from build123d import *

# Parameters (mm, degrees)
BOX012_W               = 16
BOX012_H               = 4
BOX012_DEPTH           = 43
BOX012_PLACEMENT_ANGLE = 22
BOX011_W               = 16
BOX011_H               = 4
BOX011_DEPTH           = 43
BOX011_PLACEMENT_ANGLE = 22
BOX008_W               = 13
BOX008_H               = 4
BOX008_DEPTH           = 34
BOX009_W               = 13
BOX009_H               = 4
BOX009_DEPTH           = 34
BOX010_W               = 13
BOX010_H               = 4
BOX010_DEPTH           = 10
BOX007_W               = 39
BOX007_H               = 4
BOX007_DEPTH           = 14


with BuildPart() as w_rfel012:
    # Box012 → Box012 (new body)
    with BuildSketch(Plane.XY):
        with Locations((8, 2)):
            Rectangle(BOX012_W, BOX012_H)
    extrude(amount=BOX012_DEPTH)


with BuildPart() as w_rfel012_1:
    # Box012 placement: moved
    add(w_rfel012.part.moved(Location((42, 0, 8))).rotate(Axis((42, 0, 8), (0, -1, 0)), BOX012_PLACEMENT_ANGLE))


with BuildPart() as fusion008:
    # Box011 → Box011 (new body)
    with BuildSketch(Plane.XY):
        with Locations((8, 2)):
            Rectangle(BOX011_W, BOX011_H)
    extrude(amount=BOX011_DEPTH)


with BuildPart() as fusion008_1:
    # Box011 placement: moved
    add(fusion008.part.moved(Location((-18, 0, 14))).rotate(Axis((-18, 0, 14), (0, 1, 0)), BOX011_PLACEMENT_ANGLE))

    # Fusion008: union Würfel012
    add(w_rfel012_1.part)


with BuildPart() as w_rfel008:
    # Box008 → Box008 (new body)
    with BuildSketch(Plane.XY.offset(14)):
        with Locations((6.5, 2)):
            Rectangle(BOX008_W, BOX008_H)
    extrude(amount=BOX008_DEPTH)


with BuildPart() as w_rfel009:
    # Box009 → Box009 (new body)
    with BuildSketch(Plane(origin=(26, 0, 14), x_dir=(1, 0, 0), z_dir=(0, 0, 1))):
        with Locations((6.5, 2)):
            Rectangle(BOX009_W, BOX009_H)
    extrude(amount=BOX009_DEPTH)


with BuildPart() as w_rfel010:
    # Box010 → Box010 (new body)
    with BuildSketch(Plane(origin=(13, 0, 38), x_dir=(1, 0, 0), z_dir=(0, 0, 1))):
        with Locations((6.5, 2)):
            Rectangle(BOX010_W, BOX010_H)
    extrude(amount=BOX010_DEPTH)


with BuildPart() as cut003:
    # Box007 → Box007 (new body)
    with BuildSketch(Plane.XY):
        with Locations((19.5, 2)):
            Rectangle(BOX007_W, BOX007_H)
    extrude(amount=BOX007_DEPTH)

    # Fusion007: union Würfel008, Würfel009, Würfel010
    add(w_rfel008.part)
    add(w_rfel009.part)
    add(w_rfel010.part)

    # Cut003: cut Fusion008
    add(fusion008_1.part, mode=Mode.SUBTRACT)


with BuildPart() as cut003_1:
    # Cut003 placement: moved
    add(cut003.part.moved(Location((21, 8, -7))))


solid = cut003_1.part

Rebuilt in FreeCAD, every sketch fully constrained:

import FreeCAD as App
import Part
import Sketcher

doc = App.newDocument("Part")
params = doc.addObject("Spreadsheet::Sheet", "Params")
for row, (alias, value) in enumerate([
    ("sketch1_width", "16 mm"),
    ("sketch1_height", "4 mm"),
    ("pad1_length", "43 mm"),
    ("sketch2_width", "16 mm"),
    ("sketch2_height", "4 mm"),
    ("pad2_length", "43 mm"),
    ("sketch3_width", "13 mm"),
    ("sketch3_height", "4 mm"),
    ("pad3_length", "34 mm"),
    ("sketch4_width", "13 mm"),
    ("sketch4_height", "4 mm"),
    ("pad4_length", "34 mm"),
    ("sketch5_width", "13 mm"),
    ("sketch5_height", "4 mm"),
    ("pad5_length", "10 mm"),
    ("sketch6_width", "39 mm"),
    ("sketch6_height", "4 mm"),
    ("pad6_length", "14 mm"),
], start=1):
    params.set(f"A{row}", alias)
    params.set(f"B{row}", "=" + value)
    params.setAlias(f"B{row}", alias)

body = doc.addObject("PartDesign::Body", "Body")

sketch1 = body.newObject("Sketcher::SketchObject", "Sketch")
sketch1.AttachmentSupport = (doc.getObject("XY_Plane"), [""])
sketch1.MapMode = "FlatFace"
sketch1.addGeometry(Part.LineSegment(App.Vector(0, 4, 0), App.Vector(0, 0, 0)), False)
sketch1.addGeometry(Part.LineSegment(App.Vector(0, 0, 0), App.Vector(16, 0, 0)), False)
sketch1.addGeometry(Part.LineSegment(App.Vector(16, 0, 0), App.Vector(16, 4, 0)), False)
sketch1.addGeometry(Part.LineSegment(App.Vector(16, 4, 0), App.Vector(0, 4, 0)), False)
sketch1.addConstraint(Sketcher.Constraint("Coincident", 0, 2, 1, 1))
sketch1.addConstraint(Sketcher.Constraint("Coincident", 1, 2, 2, 1))
sketch1.addConstraint(Sketcher.Constraint("Coincident", 2, 2, 3, 1))
sketch1.addConstraint(Sketcher.Constraint("Coincident", 3, 2, 0, 1))
sketch1.addConstraint(Sketcher.Constraint("Vertical", 0))
sketch1.addConstraint(Sketcher.Constraint("Horizontal", 1))
sketch1.addConstraint(Sketcher.Constraint("Vertical", 2))
sketch1.addConstraint(Sketcher.Constraint("Horizontal", 3))
sketch1.addConstraint(Sketcher.Constraint("Coincident", 0, 2, -1, 1))
sketch1.addConstraint(Sketcher.Constraint("DistanceX", 1, 1, 1, 2, 16.0))
sketch1.addConstraint(Sketcher.Constraint("DistanceY", 0, 2, 0, 1, 4.0))
sketch1.setExpression("Constraints[9]", "Params.sketch1_width")
sketch1.setExpression("Constraints[10]", "Params.sketch1_height")
pad1 = body.newObject("PartDesign::Pad", "Pad")
pad1.Profile = sketch1
pad1.setExpression("Length", "Params.pad1_length")
body2 = doc.addObject("PartDesign::Body", "Body001")
doc.recompute()

body.Placement = App.Placement(App.Vector(42, 0, 8), App.Rotation(App.Vector(0, -1, 0), 22))
boolean = body2.newObject("PartDesign::Boolean", "Boolean")
boolean.Type = "Fuse"
boolean.addObjects([body])
body3 = doc.addObject("PartDesign::Body", "Body002")

sketch2 = body3.newObject("Sketcher::SketchObject", "Sketch001")
sketch2.AttachmentSupport = (doc.getObject("XY_Plane002"), [""])
sketch2.MapMode = "FlatFace"
sketch2.addGeometry(Part.LineSegment(App.Vector(0, 4, 0), App.Vector(0, 0, 0)), False)
sketch2.addGeometry(Part.LineSegment(App.Vector(0, 0, 0), App.Vector(16, 0, 0)), False)
sketch2.addGeometry(Part.LineSegment(App.Vector(16, 0, 0), App.Vector(16, 4, 0)), False)
sketch2.addGeometry(Part.LineSegment(App.Vector(16, 4, 0), App.Vector(0, 4, 0)), False)
sketch2.addConstraint(Sketcher.Constraint("Coincident", 0, 2, 1, 1))
sketch2.addConstraint(Sketcher.Constraint("Coincident", 1, 2, 2, 1))
sketch2.addConstraint(Sketcher.Constraint("Coincident", 2, 2, 3, 1))
sketch2.addConstraint(Sketcher.Constraint("Coincident", 3, 2, 0, 1))
sketch2.addConstraint(Sketcher.Constraint("Vertical", 0))
sketch2.addConstraint(Sketcher.Constraint("Horizontal", 1))
sketch2.addConstraint(Sketcher.Constraint("Vertical", 2))
sketch2.addConstraint(Sketcher.Constraint("Horizontal", 3))
sketch2.addConstraint(Sketcher.Constraint("Coincident", 0, 2, -1, 1))
sketch2.addConstraint(Sketcher.Constraint("DistanceX", 1, 1, 1, 2, 16.0))
sketch2.addConstraint(Sketcher.Constraint("DistanceY", 0, 2, 0, 1, 4.0))
sketch2.setExpression("Constraints[9]", "Params.sketch2_width")
sketch2.setExpression("Constraints[10]", "Params.sketch2_height")
pad2 = body3.newObject("PartDesign::Pad", "Pad001")
pad2.Profile = sketch2
pad2.setExpression("Length", "Params.pad2_length")
body4 = doc.addObject("PartDesign::Body", "Body003")
body4.AllowCompound = True
doc.recompute()

body3.Placement = App.Placement(App.Vector(-18, 0, 14), App.Rotation(App.Vector(0, 1, 0), 22))
boolean2 = body4.newObject("PartDesign::Boolean", "Boolean001")
boolean2.Type = "Fuse"
boolean2.addObjects([body3])
doc.recompute()

boolean3 = body4.newObject("PartDesign::Boolean", "Boolean002")
boolean3.Type = "Fuse"
boolean3.addObjects([body2])
body5 = doc.addObject("PartDesign::Body", "Body004")

sketch3 = body5.newObject("Sketcher::SketchObject", "Sketch002")
sketch3.AttachmentSupport = (doc.getObject("XY_Plane004"), [""])
sketch3.MapMode = "FlatFace"
sketch3.AttachmentOffset = App.Placement(App.Vector(0, 0, 14), App.Rotation())
sketch3.addGeometry(Part.LineSegment(App.Vector(0, 4, 0), App.Vector(0, 0, 0)), False)
sketch3.addGeometry(Part.LineSegment(App.Vector(0, 0, 0), App.Vector(13, 0, 0)), False)
sketch3.addGeometry(Part.LineSegment(App.Vector(13, 0, 0), App.Vector(13, 4, 0)), False)
sketch3.addGeometry(Part.LineSegment(App.Vector(13, 4, 0), App.Vector(0, 4, 0)), False)
sketch3.addConstraint(Sketcher.Constraint("Coincident", 0, 2, 1, 1))
sketch3.addConstraint(Sketcher.Constraint("Coincident", 1, 2, 2, 1))
sketch3.addConstraint(Sketcher.Constraint("Coincident", 2, 2, 3, 1))
sketch3.addConstraint(Sketcher.Constraint("Coincident", 3, 2, 0, 1))
sketch3.addConstraint(Sketcher.Constraint("Vertical", 0))
sketch3.addConstraint(Sketcher.Constraint("Horizontal", 1))
sketch3.addConstraint(Sketcher.Constraint("Vertical", 2))
sketch3.addConstraint(Sketcher.Constraint("Horizontal", 3))
sketch3.addConstraint(Sketcher.Constraint("Coincident", 0, 2, -1, 1))
sketch3.addConstraint(Sketcher.Constraint("DistanceX", 1, 1, 1, 2, 13.0))
sketch3.addConstraint(Sketcher.Constraint("DistanceY", 0, 2, 0, 1, 4.0))
sketch3.setExpression("Constraints[9]", "Params.sketch3_width")
sketch3.setExpression("Constraints[10]", "Params.sketch3_height")
pad3 = body5.newObject("PartDesign::Pad", "Pad002")
pad3.Profile = sketch3
pad3.setExpression("Length", "Params.pad3_length")
body6 = doc.addObject("PartDesign::Body", "Body005")

sketch4 = body6.newObject("Sketcher::SketchObject", "Sketch003")
sketch4.AttachmentSupport = (doc.getObject("XY_Plane005"), [""])
sketch4.MapMode = "FlatFace"
sketch4.AttachmentOffset = App.Placement(App.Vector(0, 0, 14), App.Rotation())
sketch4.addGeometry(Part.LineSegment(App.Vector(26, 4, 0), App.Vector(26, 0, 0)), False)
sketch4.addGeometry(Part.LineSegment(App.Vector(26, 0, 0), App.Vector(39, 0, 0)), False)
sketch4.addGeometry(Part.LineSegment(App.Vector(39, 0, 0), App.Vector(39, 4, 0)), False)
sketch4.addGeometry(Part.LineSegment(App.Vector(39, 4, 0), App.Vector(26, 4, 0)), False)
sketch4.addConstraint(Sketcher.Constraint("Coincident", 0, 2, 1, 1))
sketch4.addConstraint(Sketcher.Constraint("Coincident", 1, 2, 2, 1))
sketch4.addConstraint(Sketcher.Constraint("Coincident", 2, 2, 3, 1))
sketch4.addConstraint(Sketcher.Constraint("Coincident", 3, 2, 0, 1))
sketch4.addConstraint(Sketcher.Constraint("Vertical", 0))
sketch4.addConstraint(Sketcher.Constraint("Horizontal", 1))
sketch4.addConstraint(Sketcher.Constraint("Vertical", 2))
sketch4.addConstraint(Sketcher.Constraint("Horizontal", 3))
sketch4.addConstraint(Sketcher.Constraint("PointOnObject", 0, 2, -1))
sketch4.addConstraint(Sketcher.Constraint("DistanceX", 1, 1, 1, 2, 13.0))
sketch4.addConstraint(Sketcher.Constraint("DistanceY", 0, 2, 0, 1, 4.0))
sketch4.addConstraint(Sketcher.Constraint("DistanceX", -1, 1, 0, 2, 26.0))
sketch4.setExpression("Constraints[9]", "Params.sketch4_width")
sketch4.setExpression("Constraints[10]", "Params.sketch4_height")
pad4 = body6.newObject("PartDesign::Pad", "Pad003")
pad4.Profile = sketch4
pad4.setExpression("Length", "Params.pad4_length")
body7 = doc.addObject("PartDesign::Body", "Body006")

sketch5 = body7.newObject("Sketcher::SketchObject", "Sketch004")
sketch5.AttachmentSupport = (doc.getObject("XY_Plane006"), [""])
sketch5.MapMode = "FlatFace"
sketch5.AttachmentOffset = App.Placement(App.Vector(0, 0, 38), App.Rotation())
sketch5.addGeometry(Part.LineSegment(App.Vector(13, 4, 0), App.Vector(13, 0, 0)), False)
sketch5.addGeometry(Part.LineSegment(App.Vector(13, 0, 0), App.Vector(26, 0, 0)), False)
sketch5.addGeometry(Part.LineSegment(App.Vector(26, 0, 0), App.Vector(26, 4, 0)), False)
sketch5.addGeometry(Part.LineSegment(App.Vector(26, 4, 0), App.Vector(13, 4, 0)), False)
sketch5.addConstraint(Sketcher.Constraint("Coincident", 0, 2, 1, 1))
sketch5.addConstraint(Sketcher.Constraint("Coincident", 1, 2, 2, 1))
sketch5.addConstraint(Sketcher.Constraint("Coincident", 2, 2, 3, 1))
sketch5.addConstraint(Sketcher.Constraint("Coincident", 3, 2, 0, 1))
sketch5.addConstraint(Sketcher.Constraint("Vertical", 0))
sketch5.addConstraint(Sketcher.Constraint("Horizontal", 1))
sketch5.addConstraint(Sketcher.Constraint("Vertical", 2))
sketch5.addConstraint(Sketcher.Constraint("Horizontal", 3))
sketch5.addConstraint(Sketcher.Constraint("PointOnObject", 0, 2, -1))
sketch5.addConstraint(Sketcher.Constraint("DistanceX", 1, 1, 1, 2, 13.0))
sketch5.addConstraint(Sketcher.Constraint("DistanceY", 0, 2, 0, 1, 4.0))
sketch5.addConstraint(Sketcher.Constraint("DistanceX", -1, 1, 0, 2, 13.0))
sketch5.setExpression("Constraints[9]", "Params.sketch5_width")
sketch5.setExpression("Constraints[10]", "Params.sketch5_height")
pad5 = body7.newObject("PartDesign::Pad", "Pad004")
pad5.Profile = sketch5
pad5.setExpression("Length", "Params.pad5_length")
body8 = doc.addObject("PartDesign::Body", "Body007")

sketch6 = body8.newObject("Sketcher::SketchObject", "Sketch005")
sketch6.AttachmentSupport = (doc.getObject("XY_Plane007"), [""])
sketch6.MapMode = "FlatFace"
sketch6.addGeometry(Part.LineSegment(App.Vector(0, 4, 0), App.Vector(0, 0, 0)), False)
sketch6.addGeometry(Part.LineSegment(App.Vector(0, 0, 0), App.Vector(39, 0, 0)), False)
sketch6.addGeometry(Part.LineSegment(App.Vector(39, 0, 0), App.Vector(39, 4, 0)), False)
sketch6.addGeometry(Part.LineSegment(App.Vector(39, 4, 0), App.Vector(0, 4, 0)), False)
sketch6.addConstraint(Sketcher.Constraint("Coincident", 0, 2, 1, 1))
sketch6.addConstraint(Sketcher.Constraint("Coincident", 1, 2, 2, 1))
sketch6.addConstraint(Sketcher.Constraint("Coincident", 2, 2, 3, 1))
sketch6.addConstraint(Sketcher.Constraint("Coincident", 3, 2, 0, 1))
sketch6.addConstraint(Sketcher.Constraint("Vertical", 0))
sketch6.addConstraint(Sketcher.Constraint("Horizontal", 1))
sketch6.addConstraint(Sketcher.Constraint("Vertical", 2))
sketch6.addConstraint(Sketcher.Constraint("Horizontal", 3))
sketch6.addConstraint(Sketcher.Constraint("Coincident", 0, 2, -1, 1))
sketch6.addConstraint(Sketcher.Constraint("DistanceX", 1, 1, 1, 2, 39.0))
sketch6.addConstraint(Sketcher.Constraint("DistanceY", 0, 2, 0, 1, 4.0))
sketch6.setExpression("Constraints[9]", "Params.sketch6_width")
sketch6.setExpression("Constraints[10]", "Params.sketch6_height")
pad6 = body8.newObject("PartDesign::Pad", "Pad005")
pad6.Profile = sketch6
pad6.setExpression("Length", "Params.pad6_length")
doc.recompute()

boolean4 = body8.newObject("PartDesign::Boolean", "Boolean003")
boolean4.Type = "Fuse"
boolean4.addObjects([body5])
doc.recompute()

boolean5 = body8.newObject("PartDesign::Boolean", "Boolean004")
boolean5.Type = "Fuse"
boolean5.addObjects([body6])
doc.recompute()

boolean6 = body8.newObject("PartDesign::Boolean", "Boolean005")
boolean6.Type = "Fuse"
boolean6.addObjects([body7])
doc.recompute()

boolean7 = body8.newObject("PartDesign::Boolean", "Boolean006")
boolean7.Type = "Cut"
boolean7.addObjects([body4])
body9 = doc.addObject("PartDesign::Body", "Body008")
doc.recompute()

body8.Placement = App.Placement(App.Vector(21, 8, -7), App.Rotation(App.Vector(0, 0, 1), 0))
boolean8 = body9.newObject("PartDesign::Boolean", "Boolean007")
boolean8.Type = "Fuse"
boolean8.addObjects([body8])

doc.recompute()
